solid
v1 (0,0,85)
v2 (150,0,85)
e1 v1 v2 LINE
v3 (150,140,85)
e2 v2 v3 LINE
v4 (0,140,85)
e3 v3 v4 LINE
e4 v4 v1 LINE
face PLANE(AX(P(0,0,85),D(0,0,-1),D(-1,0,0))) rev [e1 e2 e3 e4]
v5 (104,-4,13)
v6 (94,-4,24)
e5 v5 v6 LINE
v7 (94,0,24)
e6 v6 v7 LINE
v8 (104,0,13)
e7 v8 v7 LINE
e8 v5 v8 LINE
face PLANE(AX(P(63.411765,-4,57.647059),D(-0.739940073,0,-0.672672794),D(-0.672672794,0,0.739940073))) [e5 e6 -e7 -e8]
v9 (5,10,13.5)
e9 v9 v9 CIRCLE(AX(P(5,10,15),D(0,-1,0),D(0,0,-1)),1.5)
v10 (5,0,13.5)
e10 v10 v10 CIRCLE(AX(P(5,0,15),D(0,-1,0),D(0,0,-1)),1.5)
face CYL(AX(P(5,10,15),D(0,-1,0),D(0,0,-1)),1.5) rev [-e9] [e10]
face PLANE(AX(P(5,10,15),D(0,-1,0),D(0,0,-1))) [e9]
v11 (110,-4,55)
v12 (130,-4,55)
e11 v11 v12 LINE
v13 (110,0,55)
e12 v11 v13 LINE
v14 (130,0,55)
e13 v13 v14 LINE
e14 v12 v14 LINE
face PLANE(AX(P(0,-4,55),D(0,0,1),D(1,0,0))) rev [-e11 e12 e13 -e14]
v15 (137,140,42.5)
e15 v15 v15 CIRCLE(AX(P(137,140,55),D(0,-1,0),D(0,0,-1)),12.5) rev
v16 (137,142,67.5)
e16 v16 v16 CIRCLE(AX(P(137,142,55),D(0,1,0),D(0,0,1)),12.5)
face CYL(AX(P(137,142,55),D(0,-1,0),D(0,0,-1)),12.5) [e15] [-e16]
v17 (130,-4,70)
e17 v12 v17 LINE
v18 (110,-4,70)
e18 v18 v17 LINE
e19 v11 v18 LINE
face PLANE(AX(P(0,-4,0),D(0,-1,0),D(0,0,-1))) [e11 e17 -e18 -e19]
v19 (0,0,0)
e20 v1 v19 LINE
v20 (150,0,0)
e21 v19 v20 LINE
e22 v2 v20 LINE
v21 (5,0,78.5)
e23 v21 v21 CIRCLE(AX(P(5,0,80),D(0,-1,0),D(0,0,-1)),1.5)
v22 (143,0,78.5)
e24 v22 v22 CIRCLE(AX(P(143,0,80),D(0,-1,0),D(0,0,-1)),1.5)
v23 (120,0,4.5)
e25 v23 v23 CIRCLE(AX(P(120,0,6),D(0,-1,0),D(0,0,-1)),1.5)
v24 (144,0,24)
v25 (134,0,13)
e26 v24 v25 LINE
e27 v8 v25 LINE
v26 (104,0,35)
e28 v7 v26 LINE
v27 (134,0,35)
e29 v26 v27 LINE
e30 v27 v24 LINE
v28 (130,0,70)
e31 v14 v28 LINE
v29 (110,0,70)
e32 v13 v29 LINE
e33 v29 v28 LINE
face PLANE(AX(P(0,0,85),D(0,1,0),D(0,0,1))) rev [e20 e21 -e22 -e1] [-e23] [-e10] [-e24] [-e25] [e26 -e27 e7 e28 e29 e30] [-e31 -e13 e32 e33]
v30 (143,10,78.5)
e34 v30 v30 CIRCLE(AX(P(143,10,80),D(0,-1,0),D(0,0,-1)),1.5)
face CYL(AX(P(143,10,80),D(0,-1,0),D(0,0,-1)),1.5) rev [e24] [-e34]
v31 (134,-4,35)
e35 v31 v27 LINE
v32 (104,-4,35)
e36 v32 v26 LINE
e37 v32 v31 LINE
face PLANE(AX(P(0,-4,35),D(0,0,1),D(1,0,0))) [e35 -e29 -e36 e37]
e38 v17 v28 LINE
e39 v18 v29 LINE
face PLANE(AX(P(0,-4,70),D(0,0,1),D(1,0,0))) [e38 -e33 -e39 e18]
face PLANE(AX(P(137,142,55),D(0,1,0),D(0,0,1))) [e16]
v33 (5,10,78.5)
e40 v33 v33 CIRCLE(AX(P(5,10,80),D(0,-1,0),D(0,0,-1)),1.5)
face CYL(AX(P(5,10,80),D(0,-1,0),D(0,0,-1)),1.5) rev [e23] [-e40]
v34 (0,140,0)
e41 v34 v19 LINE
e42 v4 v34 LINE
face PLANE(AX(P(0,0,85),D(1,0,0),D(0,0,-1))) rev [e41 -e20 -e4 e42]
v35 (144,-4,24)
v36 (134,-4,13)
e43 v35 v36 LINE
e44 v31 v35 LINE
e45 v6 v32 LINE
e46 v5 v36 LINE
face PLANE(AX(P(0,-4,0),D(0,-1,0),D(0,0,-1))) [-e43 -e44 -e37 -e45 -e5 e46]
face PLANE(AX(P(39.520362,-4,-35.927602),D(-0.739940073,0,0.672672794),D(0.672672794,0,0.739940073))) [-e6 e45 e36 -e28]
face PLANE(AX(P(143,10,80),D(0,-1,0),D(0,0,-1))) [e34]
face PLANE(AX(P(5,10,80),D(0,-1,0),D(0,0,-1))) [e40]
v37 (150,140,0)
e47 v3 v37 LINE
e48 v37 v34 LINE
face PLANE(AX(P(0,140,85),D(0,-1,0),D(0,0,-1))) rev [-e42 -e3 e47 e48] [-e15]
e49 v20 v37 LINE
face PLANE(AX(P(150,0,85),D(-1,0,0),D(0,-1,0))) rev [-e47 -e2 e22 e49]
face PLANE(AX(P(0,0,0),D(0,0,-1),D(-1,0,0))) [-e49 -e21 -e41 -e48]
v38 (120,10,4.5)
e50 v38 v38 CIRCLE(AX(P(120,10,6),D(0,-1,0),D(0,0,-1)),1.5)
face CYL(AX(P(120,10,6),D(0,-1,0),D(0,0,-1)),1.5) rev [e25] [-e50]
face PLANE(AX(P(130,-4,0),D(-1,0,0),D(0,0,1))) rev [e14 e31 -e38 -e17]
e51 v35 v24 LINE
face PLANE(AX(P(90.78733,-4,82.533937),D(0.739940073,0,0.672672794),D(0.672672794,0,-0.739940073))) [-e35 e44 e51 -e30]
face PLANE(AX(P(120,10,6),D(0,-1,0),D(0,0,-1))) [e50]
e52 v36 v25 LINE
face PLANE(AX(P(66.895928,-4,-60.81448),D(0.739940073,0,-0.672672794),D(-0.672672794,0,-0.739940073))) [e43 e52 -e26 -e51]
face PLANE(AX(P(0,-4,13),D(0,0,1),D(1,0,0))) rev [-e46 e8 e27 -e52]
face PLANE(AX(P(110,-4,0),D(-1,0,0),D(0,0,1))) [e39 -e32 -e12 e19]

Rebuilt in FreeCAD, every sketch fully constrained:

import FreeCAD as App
import Part
import Sketcher
from FreeCAD import Vector


def add_polygon(sketch, points):
    """Adds a closed chain of lines whose ends are joined by coincident constraints."""
    first, n = sketch.GeometryCount, len(points)
    for a, b in zip(points, points[1:] + points[:1]):
        sketch.addGeometry(Part.LineSegment(App.Vector(*a, 0), App.Vector(*b, 0)), False)
    for i in range(n):
        sketch.addConstraint(Sketcher.Constraint("Coincident", first + i, 2, first + (i + 1) % n, 1))

doc = App.newDocument("Part")
body = doc.addObject("PartDesign::Body", "Body")

# Sketch on XY plane
sketch1 = doc.addObject("Sketcher::SketchObject", "Sketch")
body.addObject(sketch1)
sketch1.AttachmentSupport = (doc.XY_Plane, [""])
sketch1.MapMode = "FlatFace"
add_polygon(sketch1, [(0, 140), (0, 0), (150, 0), (150, 140)])  # lines 0-3
sketch1.addConstraint(Sketcher.Constraint("Vertical", 0))
sketch1.addConstraint(Sketcher.Constraint("Horizontal", 1))
sketch1.addConstraint(Sketcher.Constraint("Vertical", 2))
sketch1.addConstraint(Sketcher.Constraint("Horizontal", 3))
sketch1.addConstraint(Sketcher.Constraint("Coincident", 0, 2, -1, 1))
sketch1.addConstraint(Sketcher.Constraint("DistanceX", 1, 1, 1, 2, 150.0))
sketch1.addConstraint(Sketcher.Constraint("DistanceY", 0, 2, 0, 1, 140.0))
pad1 = doc.addObject("PartDesign::Pad", "Pad")
body.addObject(pad1)
pad1.Profile = sketch1
pad1.Length = 85

# Sketch on XZ plane
sketch2 = doc.addObject("Sketcher::SketchObject", "Sketch001")
body.addObject(sketch2)
sketch2.AttachmentSupport = (doc.XZ_Plane, [""])
sketch2.MapMode = "FlatFace"
add_polygon(sketch2, [(110, 70), (110, 55), (130, 55), (130, 70)])  # lines 0-3
add_polygon(sketch2, [(104, 35), (94, 24), (104, 13), (134, 13), (144, 24), (134, 35)])  # lines 4-9
sketch2.addConstraint(Sketcher.Constraint("Vertical", 0))
sketch2.addConstraint(Sketcher.Constraint("Horizontal", 1))
sketch2.addConstraint(Sketcher.Constraint("Vertical", 2))
sketch2.addConstraint(Sketcher.Constraint("Horizontal", 3))
sketch2.addConstraint(Sketcher.Constraint("Horizontal", 6))
sketch2.addConstraint(Sketcher.Constraint("Horizontal", 9))
sketch2.addConstraint(Sketcher.Constraint("Parallel", 4, 7))
sketch2.addConstraint(Sketcher.Constraint("Parallel", 5, 8))
sketch2.addConstraint(Sketcher.Constraint("Horizontal", 4, 2, 7, 2))
sketch2.addConstraint(Sketcher.Constraint("Vertical", 6, 2, 8, 2))
sketch2.addConstraint(Sketcher.Constraint("Vertical", 5, 2, 9, 2))
sketch2.addConstraint(Sketcher.Constraint("DistanceX", 1, 1, 1, 2, 20.0))
sketch2.addConstraint(Sketcher.Constraint("DistanceX", 6, 1, 6, 2, 30.0))
sketch2.addConstraint(Sketcher.Constraint("DistanceY", 0, 2, 0, 1, 15.0))
sketch2.addConstraint(Sketcher.Constraint("DistanceX", -1, 1, 0, 2, 110.0))
sketch2.addConstraint(Sketcher.Constraint("DistanceY", -1, 1, 0, 2, 55.0))
sketch2.addConstraint(Sketcher.Constraint("DistanceX", -1, 1, 4, 2, 94.0))
sketch2.addConstraint(Sketcher.Constraint("DistanceY", -1, 1, 4, 2, 24.0))
sketch2.addConstraint(Sketcher.Constraint("DistanceX", -1, 1, 5, 2, 104.0))
sketch2.addConstraint(Sketcher.Constraint("DistanceY", -1, 1, 5, 2, 13.0))
pad2 = doc.addObject("PartDesign::Pad", "Pad001")
body.addObject(pad2)
pad2.Profile = sketch2
pad2.Length = 4

# Sketch on XZ plane
sketch3 = doc.addObject("Sketcher::SketchObject", "Sketch002")
body.addObject(sketch3)
sketch3.AttachmentSupport = (doc.XZ_Plane, [""])
sketch3.MapMode = "FlatFace"
sketch3.addGeometry(Part.Circle(Vector(5, 80, 0), Vector(0, 0, 1), 1.5), False)
sketch3.addGeometry(Part.Circle(Vector(5, 15, 0), Vector(0, 0, 1), 1.5), False)
sketch3.addGeometry(Part.Circle(Vector(120, 6, 0), Vector(0, 0, 1), 1.5), False)
sketch3.addGeometry(Part.Circle(Vector(143, 80, 0), Vector(0, 0, 1), 1.5), False)
sketch3.addConstraint(Sketcher.Constraint("Equal", 0, 1))
sketch3.addConstraint(Sketcher.Constraint("Equal", 1, 2))
sketch3.addConstraint(Sketcher.Constraint("Equal", 2, 3))
sketch3.addConstraint(Sketcher.Constraint("Horizontal", 0, 3, 3, 3))
sketch3.addConstraint(Sketcher.Constraint("Vertical", 0, 3, 1, 3))
sketch3.addConstraint(Sketcher.Constraint("Diameter", 0, 3.0))
sketch3.addConstraint(Sketcher.Constraint("DistanceX", -1, 1, 0, 3, 5.0))
sketch3.addConstraint(Sketcher.Constraint("DistanceY", -1, 1, 0, 3, 80.0))
sketch3.addConstraint(Sketcher.Constraint("DistanceY", -1, 1, 1, 3, 15.0))
sketch3.addConstraint(Sketcher.Constraint("DistanceX", -1, 1, 2, 3, 120.0))
sketch3.addConstraint(Sketcher.Constraint("DistanceY", -1, 1, 2, 3, 6.0))
sketch3.addConstraint(Sketcher.Constraint("DistanceX", -1, 1, 3, 3, 143.0))
pocket1 = doc.addObject("PartDesign::Pocket", "Pocket")
body.addObject(pocket1)
pocket1.Profile = sketch3
pocket1.Length = 10

# Sketch on XZ plane
sketch4 = doc.addObject("Sketcher::SketchObject", "Sketch003")
body.addObject(sketch4)
sketch4.AttachmentSupport = (doc.XZ_Plane, [""])
sketch4.MapMode = "FlatFace"
sketch4.AttachmentOffset = App.Placement(Vector(0, 0, -140), App.Rotation())
sketch4.addGeometry(Part.Circle(Vector(137, 55, 0), Vector(0, 0, 1), 12.5), False)
sketch4.addConstraint(Sketcher.Constraint("Diameter", 0, 25.0))
sketch4.addConstraint(Sketcher.Constraint("DistanceX", -1, 1, 0, 3, 137.0))
sketch4.addConstraint(Sketcher.Constraint("DistanceY", -1, 1, 0, 3, 55.0))
pad3 = doc.addObject("PartDesign::Pad", "Pad002")
body.addObject(pad3)
pad3.Profile = sketch4
pad3.Length = 2
pad3.Reversed = True

doc.recompute()
